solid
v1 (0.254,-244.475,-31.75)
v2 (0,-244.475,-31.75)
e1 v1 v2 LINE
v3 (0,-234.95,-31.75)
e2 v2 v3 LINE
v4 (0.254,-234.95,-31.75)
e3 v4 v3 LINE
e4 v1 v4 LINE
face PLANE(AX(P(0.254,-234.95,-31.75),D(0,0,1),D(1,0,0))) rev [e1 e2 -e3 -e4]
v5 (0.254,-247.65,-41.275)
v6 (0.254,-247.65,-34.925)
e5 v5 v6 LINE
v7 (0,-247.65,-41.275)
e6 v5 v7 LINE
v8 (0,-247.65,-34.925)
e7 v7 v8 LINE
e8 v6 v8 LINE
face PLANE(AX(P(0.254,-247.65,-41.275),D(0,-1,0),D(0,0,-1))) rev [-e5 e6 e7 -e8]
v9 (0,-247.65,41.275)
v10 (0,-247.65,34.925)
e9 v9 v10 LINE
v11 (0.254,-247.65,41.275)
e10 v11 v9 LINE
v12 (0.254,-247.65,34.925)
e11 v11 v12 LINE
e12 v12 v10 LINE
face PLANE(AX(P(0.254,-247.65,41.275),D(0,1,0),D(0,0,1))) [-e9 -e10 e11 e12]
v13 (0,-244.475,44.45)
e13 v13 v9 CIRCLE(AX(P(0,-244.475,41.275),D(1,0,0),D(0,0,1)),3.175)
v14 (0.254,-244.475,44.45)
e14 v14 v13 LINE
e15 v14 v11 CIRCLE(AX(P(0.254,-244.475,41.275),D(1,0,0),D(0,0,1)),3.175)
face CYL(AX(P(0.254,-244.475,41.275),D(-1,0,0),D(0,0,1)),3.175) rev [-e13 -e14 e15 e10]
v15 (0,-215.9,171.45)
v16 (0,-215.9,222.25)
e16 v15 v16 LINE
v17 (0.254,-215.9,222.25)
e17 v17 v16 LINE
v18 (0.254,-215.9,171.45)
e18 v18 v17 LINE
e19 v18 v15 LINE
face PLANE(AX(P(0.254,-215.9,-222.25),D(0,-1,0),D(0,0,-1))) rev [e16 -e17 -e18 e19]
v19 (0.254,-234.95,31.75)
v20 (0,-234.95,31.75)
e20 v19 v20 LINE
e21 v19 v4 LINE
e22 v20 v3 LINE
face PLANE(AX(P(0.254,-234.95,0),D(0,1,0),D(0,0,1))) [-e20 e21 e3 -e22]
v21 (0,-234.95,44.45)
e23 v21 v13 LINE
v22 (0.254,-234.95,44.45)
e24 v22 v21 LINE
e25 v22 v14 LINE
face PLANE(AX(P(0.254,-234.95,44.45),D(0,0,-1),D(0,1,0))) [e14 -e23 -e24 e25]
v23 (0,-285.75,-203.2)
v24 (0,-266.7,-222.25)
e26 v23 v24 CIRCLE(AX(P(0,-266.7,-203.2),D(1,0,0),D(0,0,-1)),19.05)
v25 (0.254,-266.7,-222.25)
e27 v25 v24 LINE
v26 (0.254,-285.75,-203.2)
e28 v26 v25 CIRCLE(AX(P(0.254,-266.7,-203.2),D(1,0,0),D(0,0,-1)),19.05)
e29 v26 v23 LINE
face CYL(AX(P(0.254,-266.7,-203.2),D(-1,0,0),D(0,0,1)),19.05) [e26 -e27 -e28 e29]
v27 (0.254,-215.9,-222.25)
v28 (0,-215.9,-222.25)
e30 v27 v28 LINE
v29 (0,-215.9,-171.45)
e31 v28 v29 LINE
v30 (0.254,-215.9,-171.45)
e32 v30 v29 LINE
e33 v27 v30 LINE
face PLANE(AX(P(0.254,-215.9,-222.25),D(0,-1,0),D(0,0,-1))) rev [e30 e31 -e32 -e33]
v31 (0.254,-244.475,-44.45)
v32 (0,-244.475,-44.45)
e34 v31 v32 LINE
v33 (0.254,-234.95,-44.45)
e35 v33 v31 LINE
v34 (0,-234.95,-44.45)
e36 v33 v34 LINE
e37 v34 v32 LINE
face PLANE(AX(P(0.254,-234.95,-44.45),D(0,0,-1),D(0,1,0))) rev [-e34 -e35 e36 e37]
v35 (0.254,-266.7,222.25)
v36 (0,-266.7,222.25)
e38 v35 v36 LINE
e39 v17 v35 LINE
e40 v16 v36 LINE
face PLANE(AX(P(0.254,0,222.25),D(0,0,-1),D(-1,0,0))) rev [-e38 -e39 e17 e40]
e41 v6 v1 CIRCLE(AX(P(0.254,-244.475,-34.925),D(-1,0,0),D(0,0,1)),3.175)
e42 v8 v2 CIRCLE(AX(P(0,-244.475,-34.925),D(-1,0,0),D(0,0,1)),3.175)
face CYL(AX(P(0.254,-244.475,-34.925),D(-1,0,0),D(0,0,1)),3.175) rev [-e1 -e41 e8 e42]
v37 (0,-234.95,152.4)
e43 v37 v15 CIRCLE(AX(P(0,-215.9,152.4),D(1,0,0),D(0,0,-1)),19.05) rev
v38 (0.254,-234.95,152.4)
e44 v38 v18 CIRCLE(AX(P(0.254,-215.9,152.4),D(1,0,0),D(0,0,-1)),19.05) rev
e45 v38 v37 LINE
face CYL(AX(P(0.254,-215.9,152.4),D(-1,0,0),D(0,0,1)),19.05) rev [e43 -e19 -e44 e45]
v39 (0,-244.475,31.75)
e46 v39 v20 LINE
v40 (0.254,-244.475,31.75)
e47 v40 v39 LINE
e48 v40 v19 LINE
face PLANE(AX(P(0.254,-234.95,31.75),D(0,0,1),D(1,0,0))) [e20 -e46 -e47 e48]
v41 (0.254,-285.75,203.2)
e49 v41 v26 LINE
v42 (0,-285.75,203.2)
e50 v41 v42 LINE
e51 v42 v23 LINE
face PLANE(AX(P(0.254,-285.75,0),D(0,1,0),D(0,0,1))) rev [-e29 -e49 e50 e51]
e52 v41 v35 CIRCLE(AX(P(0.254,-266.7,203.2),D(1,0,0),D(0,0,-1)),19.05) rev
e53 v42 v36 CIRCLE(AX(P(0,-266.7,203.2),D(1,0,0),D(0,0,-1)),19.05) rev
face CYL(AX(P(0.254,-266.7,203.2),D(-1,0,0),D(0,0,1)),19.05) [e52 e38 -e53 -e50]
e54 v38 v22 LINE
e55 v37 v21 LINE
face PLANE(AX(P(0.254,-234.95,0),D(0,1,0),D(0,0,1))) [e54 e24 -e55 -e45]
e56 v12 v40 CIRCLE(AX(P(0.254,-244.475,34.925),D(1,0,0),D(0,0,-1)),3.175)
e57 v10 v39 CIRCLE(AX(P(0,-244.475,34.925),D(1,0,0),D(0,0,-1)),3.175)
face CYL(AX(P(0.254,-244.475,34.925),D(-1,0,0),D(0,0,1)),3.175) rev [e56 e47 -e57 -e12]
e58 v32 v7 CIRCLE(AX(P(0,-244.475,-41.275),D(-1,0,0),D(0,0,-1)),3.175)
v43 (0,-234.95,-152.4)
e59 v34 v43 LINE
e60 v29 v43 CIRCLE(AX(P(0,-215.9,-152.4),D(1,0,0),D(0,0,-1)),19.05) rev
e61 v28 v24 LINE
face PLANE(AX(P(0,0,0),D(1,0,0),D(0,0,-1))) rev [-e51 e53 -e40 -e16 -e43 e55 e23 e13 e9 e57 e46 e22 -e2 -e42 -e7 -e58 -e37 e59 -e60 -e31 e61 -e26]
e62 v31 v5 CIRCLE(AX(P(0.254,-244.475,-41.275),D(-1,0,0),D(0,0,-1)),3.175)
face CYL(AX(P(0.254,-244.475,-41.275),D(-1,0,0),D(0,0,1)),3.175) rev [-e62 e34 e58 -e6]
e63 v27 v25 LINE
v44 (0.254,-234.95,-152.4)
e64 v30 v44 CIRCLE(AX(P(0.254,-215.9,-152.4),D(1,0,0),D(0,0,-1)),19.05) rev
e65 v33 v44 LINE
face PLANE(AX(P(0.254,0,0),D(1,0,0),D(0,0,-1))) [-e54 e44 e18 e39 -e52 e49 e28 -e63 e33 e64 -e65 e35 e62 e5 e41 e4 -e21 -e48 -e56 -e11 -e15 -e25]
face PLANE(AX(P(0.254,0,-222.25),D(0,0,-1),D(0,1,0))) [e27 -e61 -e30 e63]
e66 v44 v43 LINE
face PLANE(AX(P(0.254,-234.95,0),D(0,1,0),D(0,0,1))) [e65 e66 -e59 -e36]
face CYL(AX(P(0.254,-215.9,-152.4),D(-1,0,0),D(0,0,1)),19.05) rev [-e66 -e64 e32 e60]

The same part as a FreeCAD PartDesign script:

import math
import FreeCAD as App
import Part
import Sketcher
from FreeCAD import Vector
Q = App.Units.Quantity


def add_polygon(sketch, points):
    """Adds a closed chain of lines whose ends are joined by coincident constraints."""
    first, n = sketch.GeometryCount, len(points)
    for a, b in zip(points, points[1:] + points[:1]):
        sketch.addGeometry(Part.LineSegment(App.Vector(*a, 0), App.Vector(*b, 0)), False)
    for i in range(n):
        sketch.addConstraint(Sketcher.Constraint("Coincident", first + i, 2, first + (i + 1) % n, 1))

doc = App.newDocument("Part")
params = doc.addObject("Spreadsheet::Sheet", "Params")
for row, (alias, value) in enumerate([
    ("sketch1_height", "2 in"),
    ("sketch1_height2", "16 in"),
    ("sketch1_radius", "0.75 in"),
    ("sketch1_width", "10.5 in"),
    ("sketch1_width2", "8.5 in"),
    ("pad1_length", "0.01 in"),
    ("sketch2_width", "1.3 in"),
    ("sketch2_height", "0.5 in"),
    ("sketch2_radius", "0.125 in"),
    ("sketch3_width", "8.5 in"),
    ("sketch3_height", "17.5 in"),
], start=1):
    params.set(f"A{row}", alias)
    params.set(f"B{row}", "=" + value)
    params.setAlias(f"B{row}", alias)

body = doc.addObject("PartDesign::Body", "Body")

sketch1 = body.newObject("Sketcher::SketchObject", "Sketch")
sketch1.AttachmentSupport = (doc.getObject("YZ_Plane"), [""])
sketch1.MapMode = "FlatFace"
sketch1.addGeometry([
    Part.LineSegment(Vector(0, 171, 0), Vector(0, 222, 0)),
    Part.LineSegment(Vector(0, 222, 0), Vector(-267, 222, 0)),
    Part.ArcOfCircle(Part.Circle(Vector(-267, 203, 0), Vector(0, 0, 1), 19), math.radians(90), math.radians(180)),
    Part.LineSegment(Vector(-286, 203, 0), Vector(-286, -203, 0)),
    Part.ArcOfCircle(Part.Circle(Vector(-267, -203, 0), Vector(0, 0, 1), 19), math.radians(180), math.radians(270)),
    Part.LineSegment(Vector(-267, -222, 0), Vector(0, -222, 0)),
    Part.LineSegment(Vector(0, -222, 0), Vector(0, -171, 0)),
    Part.LineSegment(Vector(0, -171, 0), Vector(-216, -171, 0)),
    Part.ArcOfCircle(Part.Circle(Vector(-216, -152, 0), Vector(0, 0, 1), 19), math.radians(180), math.radians(270)),
    Part.LineSegment(Vector(-235, -152, 0), Vector(-235, 152, 0)),
    Part.ArcOfCircle(Part.Circle(Vector(-216, 152, 0), Vector(0, 0, 1), 19), math.radians(90), math.radians(180)),
    Part.LineSegment(Vector(-216, 171, 0), Vector(0, 171, 0)),
], False)
sketch1.addConstraint([
    Sketcher.Constraint("Coincident", 0, 2, 1, 1),
    Sketcher.Constraint("Tangent", 1, 2, 2, 1),
    Sketcher.Constraint("Tangent", 2, 2, 3, 1),
    Sketcher.Constraint("Tangent", 3, 2, 4, 1),
    Sketcher.Constraint("Tangent", 4, 2, 5, 1),
    Sketcher.Constraint("Coincident", 5, 2, 6, 1),
    Sketcher.Constraint("Coincident", 6, 2, 7, 1),
    Sketcher.Constraint("Tangent", 7, 2, 8, 2),
    Sketcher.Constraint("Tangent", 8, 1, 9, 1),
    Sketcher.Constraint("Tangent", 9, 2, 10, 2),
    Sketcher.Constraint("Tangent", 10, 1, 11, 1),
    Sketcher.Constraint("Coincident", 11, 2, 0, 1),
    Sketcher.Constraint("Vertical", 0),
    Sketcher.Constraint("Horizontal", 1),
    Sketcher.Constraint("Vertical", 3),
    Sketcher.Constraint("Horizontal", 5),
    Sketcher.Constraint("Vertical", 6),
    Sketcher.Constraint("Horizontal", 7),
    Sketcher.Constraint("Vertical", 9),
    Sketcher.Constraint("Horizontal", 11),
    Sketcher.Constraint("Equal", 2, 4),
    Sketcher.Constraint("Equal", 4, 8),
    Sketcher.Constraint("Equal", 8, 10),
    Sketcher.Constraint("Symmetric", 0, 2, 5, 2, -1, 1),
    Sketcher.Constraint("Symmetric", 6, 2, 11, 2, -1),
    Sketcher.Constraint("DistanceY", 0, 1, 0, 2, Q("2 in")),
    Sketcher.Constraint("DistanceY", 3, 2, 3, 1, Q("16 in")),
    Sketcher.Constraint("Radius", 2, Q("0.75 in")),
    Sketcher.Constraint("DistanceX", 1, 2, 1, 1, Q("10.5 in")),
    Sketcher.Constraint("DistanceX", 7, 2, 7, 1, Q("8.5 in")),
])
sketch1.setExpression("Constraints[25]", "Params.sketch1_height")
sketch1.setExpression("Constraints[26]", "Params.sketch1_height2")
sketch1.setExpression("Constraints[27]", "Params.sketch1_radius")
sketch1.setExpression("Constraints[28]", "Params.sketch1_width")
sketch1.setExpression("Constraints[29]", "Params.sketch1_width2")
pad1 = body.newObject("PartDesign::Pad", "Pad")
pad1.Profile = sketch1
pad1.setExpression("Length", "Params.pad1_length")

sketch2 = body.newObject("Sketcher::SketchObject", "Sketch001")
sketch2.AttachmentSupport = (doc.getObject("YZ_Plane"), [""])
sketch2.MapMode = "FlatFace"
sketch2.addGeometry([
    Part.LineSegment(Vector(-103.8, -171.4, 0), Vector(-103.8, -181, 0)),
    Part.ArcOfCircle(Part.Circle(Vector(-106.9, -181, 0), Vector(0, 0, 1), 3.2), math.radians(-90), math.radians(0)),
    Part.LineSegment(Vector(-106.9, -184.2, 0), Vector(-133.6, -184.2, 0)),
    Part.ArcOfCircle(Part.Circle(Vector(-133.6, -181, 0), Vector(0, 0, 1), 3.2), math.radians(-180), math.radians(-90)),
    Part.LineSegment(Vector(-136.8, -181, 0), Vector(-136.8, -171.4, 0)),
    Part.LineSegment(Vector(-136.8, -171.4, 0), Vector(-103.8, -171.4, 0)),
    Part.LineSegment(Vector(-234.9, -31.8, 0), Vector(-234.9, -44.5, 0)),
    Part.LineSegment(Vector(-234.9, -44.5, 0), Vector(-244.5, -44.5, 0)),
    Part.ArcOfCircle(Part.Circle(Vector(-244.5, -41.3, 0), Vector(0, 0, 1), 3.2), math.radians(-180), math.radians(-90)),
    Part.LineSegment(Vector(-247.7, -41.3, 0), Vector(-247.7, -34.9, 0)),
    Part.ArcOfCircle(Part.Circle(Vector(-244.5, -34.9, 0), Vector(0, 0, 1), 3.2), math.radians(90), math.radians(180)),
    Part.LineSegment(Vector(-244.5, -31.8, 0), Vector(-234.9, -31.8, 0)),
], False)
sketch2.addConstraint([
    Sketcher.Constraint("Tangent", 0, 2, 1, 2),
    Sketcher.Constraint("Tangent", 1, 1, 2, 1),
    Sketcher.Constraint("Tangent", 2, 2, 3, 2),
    Sketcher.Constraint("Tangent", 3, 1, 4, 1),
    Sketcher.Constraint("Coincident", 4, 2, 5, 1),
    Sketcher.Constraint("Coincident", 5, 2, 0, 1),
    Sketcher.Constraint("Coincident", 6, 2, 7, 1),
    Sketcher.Constraint("Tangent", 7, 2, 8, 2),
    Sketcher.Constraint("Tangent", 8, 1, 9, 1),
    Sketcher.Constraint("Tangent", 9, 2, 10, 2),
    Sketcher.Constraint("Tangent", 10, 1, 11, 1),
    Sketcher.Constraint("Coincident", 11, 2, 6, 1),
    Sketcher.Constraint("Vertical", 0),
    Sketcher.Constraint("Horizontal", 2),
    Sketcher.Constraint("Vertical", 4),
    Sketcher.Constraint("Horizontal", 5),
    Sketcher.Constraint("Vertical", 6),
    Sketcher.Constraint("Horizontal", 7),
    Sketcher.Constraint("Vertical", 9),
    Sketcher.Constraint("Horizontal", 11),
    Sketcher.Constraint("Equal", 1, 3),
    Sketcher.Constraint("Equal", 3, 8),
    Sketcher.Constraint("Equal", 8, 10),
    Sketcher.Constraint("Equal", 11, 0),
    Sketcher.Constraint("DistanceX", 5, 1, 5, 2, Q("1.3 in")),
    Sketcher.Constraint("DistanceY", 6, 2, 6, 1, Q("0.5 in")),
    Sketcher.Constraint("Radius", 1, Q("0.125 in")),
    Sketcher.Constraint("DistanceY", 4, 2, 6, 2, Q("5 in")),
    Sketcher.Constraint("DistanceY", 3, 3, 8, 3, Q("5.5 in")),
    Sketcher.Constraint("DistanceX", 1, 3, -1, 1, Q("4.21 in")),
    Sketcher.Constraint("DistanceY", 1, 1, -1, 1, Q("7.25 in")),
    Sketcher.Constraint("DistanceX", 6, 2, -1, 1, Q("9.25 in")),
])
sketch2.setExpression("Constraints[24]", "Params.sketch2_width")
sketch2.setExpression("Constraints[25]", "Params.sketch2_height")
sketch2.setExpression("Constraints[26]", "Params.sketch2_radius")
pocket1 = body.newObject("PartDesign::Pocket", "Pocket")
pocket1.Profile = sketch2
pocket1.Type = "ThroughAll"
pocket1.Reversed = True
doc.recompute()

mirrored = body.newObject("PartDesign::Mirrored", "Mirrored")
mirrored.Originals = [pocket1]
mirrored.MirrorPlane = (doc.getObject("XY_Plane"), [""])
body.Tip = mirrored

sketch3 = body.newObject("Sketcher::SketchObject", "Sketch002")
sketch3.AttachmentSupport = (doc.getObject("YZ_Plane"), [""])
sketch3.MapMode = "FlatFace"
add_polygon(sketch3, [(0, -222), (-216, -222), (-216, 222), (0, 222)])
sketch3.addConstraint([
    Sketcher.Constraint("Horizontal", 0),
    Sketcher.Constraint("Vertical", 1),
    Sketcher.Constraint("Horizontal", 2),
    Sketcher.Constraint("Vertical", 3),
    Sketcher.Constraint("Symmetric", 2, 2, 3, 2, -1, 1),
    Sketcher.Constraint("DistanceX", 0, 2, 0, 1, Q("8.5 in")),
    Sketcher.Constraint("DistanceY", 1, 1, 1, 2, Q("17.5 in")),
])
sketch3.setExpression("Constraints[9]", "Params.sketch3_width")
sketch3.setExpression("Constraints[10]", "Params.sketch3_height")
pocket2 = body.newObject("PartDesign::Pocket", "Pocket001")
pocket2.Profile = sketch3
pocket2.Type = "ThroughAll"
pocket2.Reversed = True

doc.recompute()
